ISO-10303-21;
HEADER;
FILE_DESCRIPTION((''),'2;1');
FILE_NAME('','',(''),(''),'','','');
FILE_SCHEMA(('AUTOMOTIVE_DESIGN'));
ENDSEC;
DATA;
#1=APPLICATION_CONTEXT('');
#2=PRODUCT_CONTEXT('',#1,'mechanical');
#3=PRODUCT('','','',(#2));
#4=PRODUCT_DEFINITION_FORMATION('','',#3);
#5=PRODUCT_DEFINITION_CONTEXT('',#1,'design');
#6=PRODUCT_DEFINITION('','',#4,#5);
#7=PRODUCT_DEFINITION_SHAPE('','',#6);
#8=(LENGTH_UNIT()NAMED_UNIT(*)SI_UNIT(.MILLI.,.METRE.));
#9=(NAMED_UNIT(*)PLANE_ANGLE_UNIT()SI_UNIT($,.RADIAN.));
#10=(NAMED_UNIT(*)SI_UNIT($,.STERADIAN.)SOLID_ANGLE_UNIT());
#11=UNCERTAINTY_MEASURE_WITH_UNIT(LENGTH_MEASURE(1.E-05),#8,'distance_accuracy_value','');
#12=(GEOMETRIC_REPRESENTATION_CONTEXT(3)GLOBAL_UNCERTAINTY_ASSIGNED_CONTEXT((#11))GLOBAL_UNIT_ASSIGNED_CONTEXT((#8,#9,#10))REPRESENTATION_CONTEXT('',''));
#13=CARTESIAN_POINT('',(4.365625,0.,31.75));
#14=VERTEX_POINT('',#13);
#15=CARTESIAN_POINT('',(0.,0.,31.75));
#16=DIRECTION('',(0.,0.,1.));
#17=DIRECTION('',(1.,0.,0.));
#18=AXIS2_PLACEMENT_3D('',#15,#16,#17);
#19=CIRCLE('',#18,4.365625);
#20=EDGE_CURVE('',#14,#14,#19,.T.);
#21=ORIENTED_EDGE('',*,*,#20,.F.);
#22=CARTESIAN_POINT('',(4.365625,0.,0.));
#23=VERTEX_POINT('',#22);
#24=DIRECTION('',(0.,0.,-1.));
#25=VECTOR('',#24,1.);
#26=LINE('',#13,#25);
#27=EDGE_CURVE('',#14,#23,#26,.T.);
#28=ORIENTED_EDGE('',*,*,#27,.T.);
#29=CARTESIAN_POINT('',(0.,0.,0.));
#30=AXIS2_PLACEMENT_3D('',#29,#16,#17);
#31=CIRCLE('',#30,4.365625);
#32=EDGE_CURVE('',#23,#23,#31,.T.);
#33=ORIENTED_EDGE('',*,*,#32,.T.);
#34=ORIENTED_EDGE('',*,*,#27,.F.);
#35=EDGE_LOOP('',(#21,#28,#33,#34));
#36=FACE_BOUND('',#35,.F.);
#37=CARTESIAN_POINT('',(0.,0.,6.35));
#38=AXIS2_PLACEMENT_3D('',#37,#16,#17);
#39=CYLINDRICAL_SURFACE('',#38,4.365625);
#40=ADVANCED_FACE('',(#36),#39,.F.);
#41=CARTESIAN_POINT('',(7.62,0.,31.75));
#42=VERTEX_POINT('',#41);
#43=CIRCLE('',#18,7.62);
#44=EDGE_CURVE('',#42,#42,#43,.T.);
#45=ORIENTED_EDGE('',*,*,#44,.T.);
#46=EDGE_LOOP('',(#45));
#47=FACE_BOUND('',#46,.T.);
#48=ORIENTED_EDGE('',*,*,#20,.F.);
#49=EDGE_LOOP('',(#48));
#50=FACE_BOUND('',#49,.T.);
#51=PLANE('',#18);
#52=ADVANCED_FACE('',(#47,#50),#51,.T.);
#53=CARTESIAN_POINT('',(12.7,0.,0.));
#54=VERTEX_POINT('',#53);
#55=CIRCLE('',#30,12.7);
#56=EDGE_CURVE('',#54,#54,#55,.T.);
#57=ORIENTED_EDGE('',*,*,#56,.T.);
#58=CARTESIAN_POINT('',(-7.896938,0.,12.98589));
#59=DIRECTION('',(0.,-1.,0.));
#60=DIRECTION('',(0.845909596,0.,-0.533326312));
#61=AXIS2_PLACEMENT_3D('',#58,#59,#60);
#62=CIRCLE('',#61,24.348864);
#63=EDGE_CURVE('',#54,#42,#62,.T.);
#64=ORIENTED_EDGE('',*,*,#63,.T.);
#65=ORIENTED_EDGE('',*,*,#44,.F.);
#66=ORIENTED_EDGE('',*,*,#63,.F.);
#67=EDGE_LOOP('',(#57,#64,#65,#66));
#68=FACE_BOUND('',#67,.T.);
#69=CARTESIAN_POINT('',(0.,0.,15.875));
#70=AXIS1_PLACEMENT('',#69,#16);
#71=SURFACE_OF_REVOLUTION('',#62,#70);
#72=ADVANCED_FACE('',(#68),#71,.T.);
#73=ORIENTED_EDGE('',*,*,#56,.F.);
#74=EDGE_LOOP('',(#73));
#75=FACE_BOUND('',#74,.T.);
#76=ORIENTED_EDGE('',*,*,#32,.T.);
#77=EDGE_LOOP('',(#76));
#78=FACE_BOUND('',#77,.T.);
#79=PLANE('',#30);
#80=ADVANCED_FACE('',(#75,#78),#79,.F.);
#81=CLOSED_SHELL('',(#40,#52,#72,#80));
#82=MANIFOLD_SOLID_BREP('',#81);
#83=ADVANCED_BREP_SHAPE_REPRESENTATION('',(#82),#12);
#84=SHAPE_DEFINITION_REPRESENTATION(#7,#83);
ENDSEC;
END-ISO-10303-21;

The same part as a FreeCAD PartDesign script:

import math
import FreeCAD as App
import Part
import Sketcher
from FreeCAD import Vector
Q = App.Units.Quantity

doc = App.newDocument("Part")
body = doc.addObject("PartDesign::Body", "Body")

sketch1 = doc.addObject("Sketcher::SketchObject", "Sketch")
body.addObject(sketch1)
sketch1.AttachmentSupport = (doc.XZ_Plane, [""])
sketch1.MapMode = "FlatFace"
sketch1.addGeometry(Part.LineSegment(Vector(0, 32, 0), Vector(0, 0, 0)), False)
sketch1.addGeometry(Part.LineSegment(Vector(0, 0, 0), Vector(13, 0, 0)), False)
sketch1.addGeometry(Part.ArcOfCircle(Part.Circle(Vector(-8, 13, 0), Vector(0, 0, 1), 24), math.radians(-32), math.radians(50)), False)
sketch1.addGeometry(Part.LineSegment(Vector(8, 32, 0), Vector(0, 32, 0)), False)
sketch1.addConstraint(Sketcher.Constraint("Coincident", 0, 2, 1, 1))
sketch1.addConstraint(Sketcher.Constraint("Coincident", 1, 2, 2, 1))
sketch1.addConstraint(Sketcher.Constraint("Coincident", 2, 2, 3, 1))
sketch1.addConstraint(Sketcher.Constraint("Coincident", 3, 2, 0, 1))
sketch1.addConstraint(Sketcher.Constraint("Vertical", 0))
sketch1.addConstraint(Sketcher.Constraint("Horizontal", 1))
sketch1.addConstraint(Sketcher.Constraint("Horizontal", 3))
sketch1.addConstraint(Sketcher.Constraint("Coincident", 0, 2, -1, 1))
sketch1.addConstraint(Sketcher.Constraint("DistanceX", 1, 1, 1, 2, Q("0.5 in")))
sketch1.addConstraint(Sketcher.Constraint("DistanceX", 3, 2, 3, 1, Q("0.3 in")))
sketch1.addConstraint(Sketcher.Constraint("DistanceY", 0, 2, 0, 1, Q("1.25 in")))
sketch1.addConstraint(Sketcher.Constraint("Radius", 2, Q("24.348864 mm")))
revolution = doc.addObject("PartDesign::Revolution", "Revolution")
body.addObject(revolution)
revolution.Profile = sketch1
revolution.ReferenceAxis = (sketch1, ["V_Axis"])
revolution.Angle = 360

sketch2 = doc.addObject("Sketcher::SketchObject", "Sketch001")
body.addObject(sketch2)
sketch2.AttachmentSupport = (doc.XY_Plane, [""])
sketch2.MapMode = "FlatFace"
sketch2.AttachmentOffset = App.Placement(Vector(0, 0, 1.25 * 25.4), App.Rotation())
sketch2.addGeometry(Part.Circle(Vector(0, 0, 0), Vector(0, 0, 1), 4.4), False)
sketch2.addConstraint(Sketcher.Constraint("Coincident", 0, 3, -1, 1))
sketch2.addConstraint(Sketcher.Constraint("Diameter", 0, Q("0.34375 in")))
pocket1 = doc.addObject("PartDesign::Pocket", "Pocket")
body.addObject(pocket1)
pocket1.Profile = sketch2
pocket1.Length = Q("1 in")

sketch3 = doc.addObject("Sketcher::SketchObject", "Sketch002")
body.addObject(sketch3)
sketch3.AttachmentSupport = (doc.XY_Plane, [""])
sketch3.MapMode = "FlatFace"
sketch3.AttachmentOffset = App.Placement(Vector(0, 0, 0.25 * 25.4), App.Rotation())
sketch3.addGeometry(Part.Circle(Vector(0, 0, 0), Vector(0, 0, 1), 4.4), False)
sketch3.addConstraint(Sketcher.Constraint("Coincident", 0, 3, -1, 1))
sketch3.addConstraint(Sketcher.Constraint("Diameter", 0, Q("0.34375 in")))
pocket2 = doc.addObject("PartDesign::Pocket", "Pocket001")
body.addObject(pocket2)
pocket2.Profile = sketch3
pocket2.Length = Q("1 in")

doc.recompute()
